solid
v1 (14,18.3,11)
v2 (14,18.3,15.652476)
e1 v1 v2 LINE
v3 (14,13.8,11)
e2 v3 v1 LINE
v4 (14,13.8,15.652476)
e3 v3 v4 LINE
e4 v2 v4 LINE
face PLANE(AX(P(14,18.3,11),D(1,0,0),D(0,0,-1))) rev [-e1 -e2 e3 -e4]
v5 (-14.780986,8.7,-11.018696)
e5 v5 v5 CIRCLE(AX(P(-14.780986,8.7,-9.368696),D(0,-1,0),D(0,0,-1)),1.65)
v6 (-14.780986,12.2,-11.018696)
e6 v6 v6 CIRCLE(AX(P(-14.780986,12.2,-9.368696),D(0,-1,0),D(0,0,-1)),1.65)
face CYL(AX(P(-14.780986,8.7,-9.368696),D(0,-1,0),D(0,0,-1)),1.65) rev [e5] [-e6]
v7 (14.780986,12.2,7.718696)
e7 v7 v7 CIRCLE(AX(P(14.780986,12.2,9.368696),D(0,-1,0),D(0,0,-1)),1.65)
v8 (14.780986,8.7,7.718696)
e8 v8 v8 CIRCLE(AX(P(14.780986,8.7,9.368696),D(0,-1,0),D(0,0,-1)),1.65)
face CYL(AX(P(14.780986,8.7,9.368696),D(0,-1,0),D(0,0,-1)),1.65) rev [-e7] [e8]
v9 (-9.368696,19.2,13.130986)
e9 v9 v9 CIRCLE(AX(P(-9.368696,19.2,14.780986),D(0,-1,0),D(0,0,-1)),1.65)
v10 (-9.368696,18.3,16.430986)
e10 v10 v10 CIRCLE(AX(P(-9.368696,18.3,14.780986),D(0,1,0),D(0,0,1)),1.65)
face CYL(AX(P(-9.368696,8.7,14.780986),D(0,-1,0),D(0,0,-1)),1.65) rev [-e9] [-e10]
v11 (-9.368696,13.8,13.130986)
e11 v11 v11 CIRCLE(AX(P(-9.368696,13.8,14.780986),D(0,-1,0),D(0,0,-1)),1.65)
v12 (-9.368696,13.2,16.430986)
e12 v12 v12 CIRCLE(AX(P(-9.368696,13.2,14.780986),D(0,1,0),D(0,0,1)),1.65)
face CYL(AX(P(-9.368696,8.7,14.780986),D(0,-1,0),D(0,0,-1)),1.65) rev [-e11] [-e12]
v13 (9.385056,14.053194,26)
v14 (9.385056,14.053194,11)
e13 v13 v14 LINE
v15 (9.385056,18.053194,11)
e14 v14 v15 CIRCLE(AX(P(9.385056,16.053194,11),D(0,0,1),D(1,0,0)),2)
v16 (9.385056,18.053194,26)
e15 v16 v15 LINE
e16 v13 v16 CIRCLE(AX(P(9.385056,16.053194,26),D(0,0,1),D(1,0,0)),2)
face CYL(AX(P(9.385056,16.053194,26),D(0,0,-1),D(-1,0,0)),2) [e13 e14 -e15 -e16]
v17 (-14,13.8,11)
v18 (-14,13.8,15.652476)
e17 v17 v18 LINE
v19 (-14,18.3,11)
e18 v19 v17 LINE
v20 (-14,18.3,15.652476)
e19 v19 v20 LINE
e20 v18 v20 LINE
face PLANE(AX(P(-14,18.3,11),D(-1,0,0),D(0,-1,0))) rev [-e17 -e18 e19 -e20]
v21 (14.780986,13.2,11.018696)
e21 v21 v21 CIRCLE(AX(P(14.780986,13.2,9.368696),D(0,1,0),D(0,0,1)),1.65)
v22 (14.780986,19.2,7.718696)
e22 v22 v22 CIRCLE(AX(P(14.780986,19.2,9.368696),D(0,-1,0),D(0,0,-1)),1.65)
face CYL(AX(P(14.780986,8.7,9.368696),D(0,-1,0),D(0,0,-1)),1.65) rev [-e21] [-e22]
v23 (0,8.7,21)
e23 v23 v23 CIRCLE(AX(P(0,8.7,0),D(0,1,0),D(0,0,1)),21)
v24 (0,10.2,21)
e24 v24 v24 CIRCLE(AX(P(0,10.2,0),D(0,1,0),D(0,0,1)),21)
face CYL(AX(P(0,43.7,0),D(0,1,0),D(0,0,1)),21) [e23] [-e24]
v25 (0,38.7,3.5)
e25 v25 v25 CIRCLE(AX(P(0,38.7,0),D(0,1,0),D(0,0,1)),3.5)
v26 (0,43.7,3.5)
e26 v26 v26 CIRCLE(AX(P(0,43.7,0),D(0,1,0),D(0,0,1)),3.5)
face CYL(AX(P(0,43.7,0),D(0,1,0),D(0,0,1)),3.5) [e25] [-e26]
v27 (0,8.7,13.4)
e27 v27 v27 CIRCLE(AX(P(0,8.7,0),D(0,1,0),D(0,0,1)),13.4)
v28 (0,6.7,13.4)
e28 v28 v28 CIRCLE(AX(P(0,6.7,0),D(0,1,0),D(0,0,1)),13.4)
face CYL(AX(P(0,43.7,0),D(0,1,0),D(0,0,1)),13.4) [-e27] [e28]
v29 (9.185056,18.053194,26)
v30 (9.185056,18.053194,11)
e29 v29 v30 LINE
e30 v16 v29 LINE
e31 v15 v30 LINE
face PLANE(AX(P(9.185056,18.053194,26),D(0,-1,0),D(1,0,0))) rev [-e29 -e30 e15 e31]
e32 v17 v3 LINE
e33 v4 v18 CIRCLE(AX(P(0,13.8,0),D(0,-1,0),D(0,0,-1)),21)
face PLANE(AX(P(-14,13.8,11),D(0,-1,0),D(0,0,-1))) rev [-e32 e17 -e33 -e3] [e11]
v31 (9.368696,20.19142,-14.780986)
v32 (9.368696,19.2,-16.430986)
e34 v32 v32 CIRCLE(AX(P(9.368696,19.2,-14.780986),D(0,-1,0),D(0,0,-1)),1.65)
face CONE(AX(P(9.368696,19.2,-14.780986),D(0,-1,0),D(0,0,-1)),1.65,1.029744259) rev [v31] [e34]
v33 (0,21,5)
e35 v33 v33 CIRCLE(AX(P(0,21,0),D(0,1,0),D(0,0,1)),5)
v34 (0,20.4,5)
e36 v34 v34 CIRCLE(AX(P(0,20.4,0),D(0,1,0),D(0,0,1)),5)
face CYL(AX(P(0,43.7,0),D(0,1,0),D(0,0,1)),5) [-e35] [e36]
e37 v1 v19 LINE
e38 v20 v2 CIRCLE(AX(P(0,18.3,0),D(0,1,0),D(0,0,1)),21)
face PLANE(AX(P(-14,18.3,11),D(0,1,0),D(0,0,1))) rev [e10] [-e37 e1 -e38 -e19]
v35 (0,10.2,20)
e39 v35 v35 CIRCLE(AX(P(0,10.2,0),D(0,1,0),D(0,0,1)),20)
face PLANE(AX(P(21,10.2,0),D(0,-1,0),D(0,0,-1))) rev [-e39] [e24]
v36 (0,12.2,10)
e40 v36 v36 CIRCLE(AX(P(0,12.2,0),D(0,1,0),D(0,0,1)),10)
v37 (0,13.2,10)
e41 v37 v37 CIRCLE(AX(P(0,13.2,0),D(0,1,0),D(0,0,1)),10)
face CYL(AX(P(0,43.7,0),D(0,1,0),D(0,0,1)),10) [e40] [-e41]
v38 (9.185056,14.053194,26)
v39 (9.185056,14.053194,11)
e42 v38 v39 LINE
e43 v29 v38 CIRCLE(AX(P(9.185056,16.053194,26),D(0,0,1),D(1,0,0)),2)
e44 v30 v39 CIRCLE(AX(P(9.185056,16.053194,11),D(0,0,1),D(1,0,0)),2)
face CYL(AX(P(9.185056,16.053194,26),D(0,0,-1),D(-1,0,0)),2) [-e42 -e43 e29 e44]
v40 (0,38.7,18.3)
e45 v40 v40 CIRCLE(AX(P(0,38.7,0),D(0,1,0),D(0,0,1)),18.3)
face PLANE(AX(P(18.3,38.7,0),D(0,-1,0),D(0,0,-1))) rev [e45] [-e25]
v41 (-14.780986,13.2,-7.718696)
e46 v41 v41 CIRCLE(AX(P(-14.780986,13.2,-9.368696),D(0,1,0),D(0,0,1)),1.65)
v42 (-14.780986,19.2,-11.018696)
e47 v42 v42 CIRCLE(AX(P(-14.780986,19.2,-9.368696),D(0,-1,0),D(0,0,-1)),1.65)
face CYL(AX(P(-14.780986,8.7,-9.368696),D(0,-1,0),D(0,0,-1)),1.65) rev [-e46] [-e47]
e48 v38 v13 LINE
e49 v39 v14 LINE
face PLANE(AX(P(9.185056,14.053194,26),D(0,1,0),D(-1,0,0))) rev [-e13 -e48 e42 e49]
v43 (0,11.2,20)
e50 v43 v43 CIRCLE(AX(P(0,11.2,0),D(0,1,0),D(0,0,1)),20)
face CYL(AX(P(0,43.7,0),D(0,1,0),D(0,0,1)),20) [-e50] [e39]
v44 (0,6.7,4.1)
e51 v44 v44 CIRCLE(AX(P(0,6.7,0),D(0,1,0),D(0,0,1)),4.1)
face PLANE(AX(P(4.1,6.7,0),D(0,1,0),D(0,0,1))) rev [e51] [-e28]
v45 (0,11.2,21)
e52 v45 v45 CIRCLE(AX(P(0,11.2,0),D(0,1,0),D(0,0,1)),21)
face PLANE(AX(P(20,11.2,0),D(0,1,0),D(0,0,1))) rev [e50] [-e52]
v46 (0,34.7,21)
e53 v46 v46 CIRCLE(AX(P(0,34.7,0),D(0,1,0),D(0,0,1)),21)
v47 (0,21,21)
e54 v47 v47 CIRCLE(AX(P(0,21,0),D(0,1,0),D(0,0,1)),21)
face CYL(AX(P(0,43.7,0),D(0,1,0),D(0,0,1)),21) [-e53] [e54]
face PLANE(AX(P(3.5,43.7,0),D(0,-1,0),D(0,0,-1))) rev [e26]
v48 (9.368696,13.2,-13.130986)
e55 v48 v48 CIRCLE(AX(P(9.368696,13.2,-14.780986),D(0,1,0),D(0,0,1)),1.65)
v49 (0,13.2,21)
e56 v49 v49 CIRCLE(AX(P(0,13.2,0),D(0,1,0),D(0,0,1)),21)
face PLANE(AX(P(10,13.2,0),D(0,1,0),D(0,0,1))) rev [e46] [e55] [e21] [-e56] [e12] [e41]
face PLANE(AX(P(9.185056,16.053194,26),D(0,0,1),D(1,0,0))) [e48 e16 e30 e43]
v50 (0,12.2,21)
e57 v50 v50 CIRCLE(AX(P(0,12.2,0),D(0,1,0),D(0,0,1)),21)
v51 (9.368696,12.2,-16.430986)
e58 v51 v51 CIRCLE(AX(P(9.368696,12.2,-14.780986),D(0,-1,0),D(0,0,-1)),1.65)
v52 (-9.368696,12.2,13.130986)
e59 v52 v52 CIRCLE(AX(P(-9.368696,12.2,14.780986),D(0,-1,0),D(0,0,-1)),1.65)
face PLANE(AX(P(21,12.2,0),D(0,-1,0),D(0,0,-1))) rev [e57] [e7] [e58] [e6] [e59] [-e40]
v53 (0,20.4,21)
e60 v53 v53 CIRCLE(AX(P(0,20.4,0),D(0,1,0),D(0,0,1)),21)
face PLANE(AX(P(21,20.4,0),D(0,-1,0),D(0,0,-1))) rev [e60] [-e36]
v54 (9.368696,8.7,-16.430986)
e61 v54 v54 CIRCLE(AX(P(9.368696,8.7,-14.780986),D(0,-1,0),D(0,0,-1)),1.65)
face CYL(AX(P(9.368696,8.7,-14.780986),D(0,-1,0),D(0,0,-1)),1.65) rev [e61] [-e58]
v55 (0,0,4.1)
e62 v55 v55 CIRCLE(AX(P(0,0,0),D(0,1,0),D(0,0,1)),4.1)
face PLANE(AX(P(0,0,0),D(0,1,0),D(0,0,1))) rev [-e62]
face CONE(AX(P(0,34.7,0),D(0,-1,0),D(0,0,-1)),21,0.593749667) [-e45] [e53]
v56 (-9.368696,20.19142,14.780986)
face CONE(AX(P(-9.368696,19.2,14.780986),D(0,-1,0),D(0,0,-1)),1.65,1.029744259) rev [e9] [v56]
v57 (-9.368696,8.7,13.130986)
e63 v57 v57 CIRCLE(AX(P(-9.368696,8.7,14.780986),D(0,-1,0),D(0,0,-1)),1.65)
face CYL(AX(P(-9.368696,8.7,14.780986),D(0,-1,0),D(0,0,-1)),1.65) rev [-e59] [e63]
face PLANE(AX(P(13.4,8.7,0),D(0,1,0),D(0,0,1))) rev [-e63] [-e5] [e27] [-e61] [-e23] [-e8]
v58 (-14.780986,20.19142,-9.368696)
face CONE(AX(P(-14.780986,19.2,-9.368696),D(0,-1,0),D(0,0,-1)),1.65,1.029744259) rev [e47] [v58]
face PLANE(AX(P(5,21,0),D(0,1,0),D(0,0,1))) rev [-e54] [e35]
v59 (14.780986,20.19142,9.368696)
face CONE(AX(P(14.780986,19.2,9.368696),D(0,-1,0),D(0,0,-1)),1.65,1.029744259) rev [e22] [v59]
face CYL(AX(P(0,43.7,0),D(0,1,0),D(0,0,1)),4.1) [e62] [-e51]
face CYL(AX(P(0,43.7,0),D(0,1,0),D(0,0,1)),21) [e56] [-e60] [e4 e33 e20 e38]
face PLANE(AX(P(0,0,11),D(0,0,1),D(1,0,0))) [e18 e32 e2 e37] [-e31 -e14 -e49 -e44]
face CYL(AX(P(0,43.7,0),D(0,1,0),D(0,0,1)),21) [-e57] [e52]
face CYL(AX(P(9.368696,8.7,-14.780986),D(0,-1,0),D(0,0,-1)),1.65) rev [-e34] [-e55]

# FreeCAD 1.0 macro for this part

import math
import FreeCAD as App
import Part
import Sketcher

doc = App.newDocument("Part")
body = doc.addObject("PartDesign::Body", "Body")

# Sketch on XY plane
sketch1 = body.newObject("Sketcher::SketchObject", "Sketch")
sketch1.AttachmentSupport = (doc.getObject("XY_Plane"), [""])
sketch1.MapMode = "FlatFace"
sketch1.addGeometry([
    Part.LineSegment(App.Vector(0, 0, 0), App.Vector(4.1, 0, 0)),  # 0
    Part.LineSegment(App.Vector(4.1, 0, 0), App.Vector(4.1, 6.7, 0)),  # 1
    Part.LineSegment(App.Vector(4.1, 6.7, 0), App.Vector(13.4, 6.7, 0)),  # 2
    Part.LineSegment(App.Vector(13.4, 6.7, 0), App.Vector(13.4, 8.7, 0)),  # 3
    Part.LineSegment(App.Vector(13.4, 8.7, 0), App.Vector(21, 8.7, 0)),  # 4
    Part.LineSegment(App.Vector(21, 8.7, 0), App.Vector(21, 10.2, 0)),  # 5
    Part.LineSegment(App.Vector(21, 10.2, 0), App.Vector(20, 10.2, 0)),  # 6
    Part.LineSegment(App.Vector(20, 10.2, 0), App.Vector(20, 11.2, 0)),  # 7
    Part.LineSegment(App.Vector(20, 11.2, 0), App.Vector(21, 11.2, 0)),  # 8
    Part.LineSegment(App.Vector(21, 11.2, 0), App.Vector(21, 12.2, 0)),  # 9
    Part.LineSegment(App.Vector(21, 12.2, 0), App.Vector(10, 12.2, 0)),  # 10
    Part.LineSegment(App.Vector(10, 12.2, 0), App.Vector(10, 13.2, 0)),  # 11
    Part.LineSegment(App.Vector(10, 13.2, 0), App.Vector(21, 13.2, 0)),  # 12
    Part.LineSegment(App.Vector(21, 13.2, 0), App.Vector(21, 20.4, 0)),  # 13
    Part.LineSegment(App.Vector(21, 20.4, 0), App.Vector(5, 20.4, 0)),  # 14
    Part.LineSegment(App.Vector(5, 20.4, 0), App.Vector(5, 21, 0)),  # 15
    Part.LineSegment(App.Vector(5, 21, 0), App.Vector(21, 21, 0)),  # 16
    Part.LineSegment(App.Vector(21, 21, 0), App.Vector(21, 34.7, 0)),  # 17
    Part.LineSegment(App.Vector(21, 34.7, 0), App.Vector(18.3, 38.7, 0)),  # 18
    Part.LineSegment(App.Vector(18.3, 38.7, 0), App.Vector(3.5, 38.7, 0)),  # 19
    Part.LineSegment(App.Vector(3.5, 38.7, 0), App.Vector(3.5, 43.7, 0)),  # 20
    Part.LineSegment(App.Vector(3.5, 43.7, 0), App.Vector(0, 43.7, 0)),  # 21
    Part.LineSegment(App.Vector(0, 43.7, 0), App.Vector(0, 0, 0)),  # 22
], False)
sketch1.addConstraint([
    Sketcher.Constraint("Coincident", 0, 2, 1, 1),
    Sketcher.Constraint("Coincident", 1, 2, 2, 1),
    Sketcher.Constraint("Coincident", 2, 2, 3, 1),
    Sketcher.Constraint("Coincident", 3, 2, 4, 1),
    Sketcher.Constraint("Coincident", 4, 2, 5, 1),
    Sketcher.Constraint("Coincident", 5, 2, 6, 1),
    Sketcher.Constraint("Coincident", 6, 2, 7, 1),
    Sketcher.Constraint("Coincident", 7, 2, 8, 1),
    Sketcher.Constraint("Coincident", 8, 2, 9, 1),
    Sketcher.Constraint("Coincident", 9, 2, 10, 1),
    Sketcher.Constraint("Coincident", 10, 2, 11, 1),
    Sketcher.Constraint("Coincident", 11, 2, 12, 1),
    Sketcher.Constraint("Coincident", 12, 2, 13, 1),
    Sketcher.Constraint("Coincident", 13, 2, 14, 1),
    Sketcher.Constraint("Coincident", 14, 2, 15, 1),
    Sketcher.Constraint("Coincident", 15, 2, 16, 1),
    Sketcher.Constraint("Coincident", 16, 2, 17, 1),
    Sketcher.Constraint("Coincident", 17, 2, 18, 1),
    Sketcher.Constraint("Coincident", 18, 2, 19, 1),
    Sketcher.Constraint("Coincident", 19, 2, 20, 1),
    Sketcher.Constraint("Coincident", 20, 2, 21, 1),
    Sketcher.Constraint("Coincident", 21, 2, 22, 1),
    Sketcher.Constraint("Coincident", 22, 2, 0, 1),
    Sketcher.Constraint("Horizontal", 0),
    Sketcher.Constraint("Vertical", 1),
    Sketcher.Constraint("Horizontal", 2),
    Sketcher.Constraint("Vertical", 3),
    Sketcher.Constraint("Horizontal", 4),
    Sketcher.Constraint("Vertical", 5),
    Sketcher.Constraint("Horizontal", 6),
    Sketcher.Constraint("Vertical", 7),
    Sketcher.Constraint("Horizontal", 8),
    Sketcher.Constraint("Vertical", 9),
    Sketcher.Constraint("Horizontal", 10),
    Sketcher.Constraint("Vertical", 11),
    Sketcher.Constraint("Horizontal", 12),
    Sketcher.Constraint("Vertical", 13),
    Sketcher.Constraint("Horizontal", 14),
    Sketcher.Constraint("Vertical", 15),
    Sketcher.Constraint("Horizontal", 16),
    Sketcher.Constraint("Vertical", 17),
    Sketcher.Constraint("Horizontal", 19),
    Sketcher.Constraint("Vertical", 20),
    Sketcher.Constraint("Horizontal", 21),
    Sketcher.Constraint("Vertical", 22),
    Sketcher.Constraint("Coincident", 22, 2, -1, 1),
    Sketcher.Constraint("Vertical", 5, 2, 8, 2),
    Sketcher.Constraint("Vertical", 9, 2, 12, 2),
    Sketcher.Constraint("Vertical", 13, 2, 16, 2),
    Sketcher.Constraint("Equal", 8, 7),
    Sketcher.Constraint("Equal", 7, 9),
    Sketcher.Constraint("Equal", 9, 11),
    Sketcher.Constraint("DistanceX", 6, 2, 6, 1, 1.0),
    Sketcher.Constraint("DistanceX", 10, 2, 10, 1, 11.0),
    Sketcher.Constraint("DistanceX", 14, 2, 14, 1, 16.0),
    Sketcher.Constraint("DistanceY", 3, 1, 3, 2, 2.0),
    Sketcher.Constraint("DistanceY", 20, 1, 20, 2, 5.0),
    Sketcher.Constraint("DistanceX", 0, 1, 0, 2, 4.1),
    Sketcher.Constraint("DistanceX", 2, 1, 2, 2, 9.3),
    Sketcher.Constraint("DistanceX", 4, 1, 4, 2, 7.6),
    Sketcher.Constraint("DistanceX", 19, 2, 19, 1, 14.8),
    Sketcher.Constraint("DistanceX", 21, 2, 21, 1, 3.5),
    Sketcher.Constraint("DistanceY", 1, 1, 1, 2, 6.7),
    Sketcher.Constraint("DistanceY", 5, 1, 5, 2, 1.5),
    Sketcher.Constraint("DistanceY", 13, 1, 13, 2, 7.2),
    Sketcher.Constraint("DistanceY", 15, 1, 15, 2, 0.6),
    Sketcher.Constraint("DistanceY", 17, 1, 17, 2, 13.7),
    Sketcher.Constraint("DistanceY", 22, 2, 22, 1, 43.7),
])
revolution = body.newObject("PartDesign::Revolution", "Revolution")
revolution.Profile = sketch1
revolution.ReferenceAxis = (sketch1, ["V_Axis"])
revolution.Angle = 360

# Sketch on XY plane
sketch2 = body.newObject("Sketcher::SketchObject", "Sketch001")
sketch2.AttachmentSupport = (doc.getObject("XY_Plane"), [""])
sketch2.MapMode = "FlatFace"
sketch2.AttachmentOffset = App.Placement(App.Vector(0, 0, 21), App.Rotation())
sketch2.addGeometry([
    Part.LineSegment(App.Vector(-14, 18.3, 0), App.Vector(-14, 13.8, 0)),
    Part.LineSegment(App.Vector(-14, 13.8, 0), App.Vector(14, 13.8, 0)),
    Part.LineSegment(App.Vector(14, 13.8, 0), App.Vector(14, 18.3, 0)),
    Part.LineSegment(App.Vector(14, 18.3, 0), App.Vector(-14, 18.3, 0)),
], False)
sketch2.addConstraint([
    Sketcher.Constraint("Coincident", 0, 2, 1, 1),
    Sketcher.Constraint("Coincident", 1, 2, 2, 1),
    Sketcher.Constraint("Coincident", 2, 2, 3, 1),
    Sketcher.Constraint("Coincident", 3, 2, 0, 1),
    Sketcher.Constraint("Vertical", 0),
    Sketcher.Constraint("Horizontal", 1),
    Sketcher.Constraint("Vertical", 2),
    Sketcher.Constraint("Horizontal", 3),
    Sketcher.Constraint("DistanceX", 1, 1, 1, 2, 28.0),
    Sketcher.Constraint("DistanceY", 0, 2, 0, 1, 4.5),
    Sketcher.Constraint("DistanceX", 0, 2, -1, 1, 14.0),
    Sketcher.Constraint("DistanceY", -1, 1, 0, 2, 13.8),
])
pocket1 = body.newObject("PartDesign::Pocket", "Pocket")
pocket1.Profile = sketch2
pocket1.Length = 10

# Sketch on XY plane
sketch3 = body.newObject("Sketcher::SketchObject", "Sketch002")
sketch3.AttachmentSupport = (doc.getObject("XY_Plane"), [""])
sketch3.MapMode = "FlatFace"
sketch3.AttachmentOffset = App.Placement(App.Vector(0, 0, 11), App.Rotation())
sketch3.addGeometry([
    Part.LineSegment(App.Vector(9.385056, 18.053194, 0), App.Vector(9.185056, 18.053194, 0)),
    Part.ArcOfCircle(Part.Circle(App.Vector(9.185056, 16.053194, 0), App.Vector(0, 0, 1), 2), math.radians(90), math.radians(270)),
    Part.LineSegment(App.Vector(9.185056, 14.053194, 0), App.Vector(9.385056, 14.053194, 0)),
    Part.ArcOfCircle(Part.Circle(App.Vector(9.385056, 16.053194, 0), App.Vector(0, 0, 1), 2), math.radians(-90), math.radians(90)),
], False)
sketch3.addConstraint([
    Sketcher.Constraint("Tangent", 0, 2, 1, 1),
    Sketcher.Constraint("Tangent", 1, 2, 2, 1),
    Sketcher.Constraint("Tangent", 2, 2, 3, 1),
    Sketcher.Constraint("Tangent", 3, 2, 0, 1),
    Sketcher.Constraint("Horizontal", 0),
    Sketcher.Constraint("Horizontal", 2),
    Sketcher.Constraint("Radius", 1, 2.0),
    Sketcher.Constraint("DistanceX", 0, 2, 0, 1, 0.2),
    Sketcher.Constraint("DistanceX", -1, 1, 1, 3, 9.185056),
    Sketcher.Constraint("DistanceY", -1, 1, 1, 3, 16.053194),
])
pad1 = body.newObject("PartDesign::Pad", "Pad")
pad1.Profile = sketch3
pad1.Length = 15

# Sketch on XZ plane
sketch4 = body.newObject("Sketcher::SketchObject", "Sketch003")
sketch4.AttachmentSupport = (doc.getObject("XZ_Plane"), [""])
sketch4.MapMode = "FlatFace"
sketch4.AttachmentOffset = App.Placement(App.Vector(0, 0, -8.7), App.Rotation())
sketch4.addGeometry([
    Part.Circle(App.Vector(-14.780986, -9.368696, 0), App.Vector(0, 0, 1), 1.65),
    Part.Circle(App.Vector(-9.368696, 14.780986, 0), App.Vector(0, 0, 1), 1.65),
    Part.Circle(App.Vector(9.368696, -14.780986, 0), App.Vector(0, 0, 1), 1.65),
    Part.Circle(App.Vector(14.780986, 9.368696, 0), App.Vector(0, 0, 1), 1.65),
], False)
sketch4.addConstraint([
    Sketcher.Constraint("Equal", 0, 1),
    Sketcher.Constraint("Equal", 1, 2),
    Sketcher.Constraint("Equal", 2, 3),
    Sketcher.Constraint("Symmetric", 1, 3, 2, 3, -1, 1),
    Sketcher.Constraint("Symmetric", 0, 3, 3, 3, -1, 1),
    Sketcher.Constraint("Diameter", 0, 3.3),
    Sketcher.Constraint("DistanceX", 0, 3, 1, 3, 5.412289),
    Sketcher.Constraint("DistanceY", 0, 3, 1, 3, 24.149682),
    Sketcher.Constraint("DistanceX", 0, 3, 2, 3, 24.149682),
    Sketcher.Constraint("DistanceY", 2, 3, 0, 3, 5.412289),
])
doc.recompute()
hole = body.newObject("PartDesign::Hole", "Hole")
hole.Profile = sketch4
hole.ThreadType = "None"
hole.Diameter = 3.3
hole.DepthType = "Dimension"
hole.Depth = 10.5
hole.DrillPoint = "Angled"
hole.DrillPointAngle = 118

doc.recompute()
